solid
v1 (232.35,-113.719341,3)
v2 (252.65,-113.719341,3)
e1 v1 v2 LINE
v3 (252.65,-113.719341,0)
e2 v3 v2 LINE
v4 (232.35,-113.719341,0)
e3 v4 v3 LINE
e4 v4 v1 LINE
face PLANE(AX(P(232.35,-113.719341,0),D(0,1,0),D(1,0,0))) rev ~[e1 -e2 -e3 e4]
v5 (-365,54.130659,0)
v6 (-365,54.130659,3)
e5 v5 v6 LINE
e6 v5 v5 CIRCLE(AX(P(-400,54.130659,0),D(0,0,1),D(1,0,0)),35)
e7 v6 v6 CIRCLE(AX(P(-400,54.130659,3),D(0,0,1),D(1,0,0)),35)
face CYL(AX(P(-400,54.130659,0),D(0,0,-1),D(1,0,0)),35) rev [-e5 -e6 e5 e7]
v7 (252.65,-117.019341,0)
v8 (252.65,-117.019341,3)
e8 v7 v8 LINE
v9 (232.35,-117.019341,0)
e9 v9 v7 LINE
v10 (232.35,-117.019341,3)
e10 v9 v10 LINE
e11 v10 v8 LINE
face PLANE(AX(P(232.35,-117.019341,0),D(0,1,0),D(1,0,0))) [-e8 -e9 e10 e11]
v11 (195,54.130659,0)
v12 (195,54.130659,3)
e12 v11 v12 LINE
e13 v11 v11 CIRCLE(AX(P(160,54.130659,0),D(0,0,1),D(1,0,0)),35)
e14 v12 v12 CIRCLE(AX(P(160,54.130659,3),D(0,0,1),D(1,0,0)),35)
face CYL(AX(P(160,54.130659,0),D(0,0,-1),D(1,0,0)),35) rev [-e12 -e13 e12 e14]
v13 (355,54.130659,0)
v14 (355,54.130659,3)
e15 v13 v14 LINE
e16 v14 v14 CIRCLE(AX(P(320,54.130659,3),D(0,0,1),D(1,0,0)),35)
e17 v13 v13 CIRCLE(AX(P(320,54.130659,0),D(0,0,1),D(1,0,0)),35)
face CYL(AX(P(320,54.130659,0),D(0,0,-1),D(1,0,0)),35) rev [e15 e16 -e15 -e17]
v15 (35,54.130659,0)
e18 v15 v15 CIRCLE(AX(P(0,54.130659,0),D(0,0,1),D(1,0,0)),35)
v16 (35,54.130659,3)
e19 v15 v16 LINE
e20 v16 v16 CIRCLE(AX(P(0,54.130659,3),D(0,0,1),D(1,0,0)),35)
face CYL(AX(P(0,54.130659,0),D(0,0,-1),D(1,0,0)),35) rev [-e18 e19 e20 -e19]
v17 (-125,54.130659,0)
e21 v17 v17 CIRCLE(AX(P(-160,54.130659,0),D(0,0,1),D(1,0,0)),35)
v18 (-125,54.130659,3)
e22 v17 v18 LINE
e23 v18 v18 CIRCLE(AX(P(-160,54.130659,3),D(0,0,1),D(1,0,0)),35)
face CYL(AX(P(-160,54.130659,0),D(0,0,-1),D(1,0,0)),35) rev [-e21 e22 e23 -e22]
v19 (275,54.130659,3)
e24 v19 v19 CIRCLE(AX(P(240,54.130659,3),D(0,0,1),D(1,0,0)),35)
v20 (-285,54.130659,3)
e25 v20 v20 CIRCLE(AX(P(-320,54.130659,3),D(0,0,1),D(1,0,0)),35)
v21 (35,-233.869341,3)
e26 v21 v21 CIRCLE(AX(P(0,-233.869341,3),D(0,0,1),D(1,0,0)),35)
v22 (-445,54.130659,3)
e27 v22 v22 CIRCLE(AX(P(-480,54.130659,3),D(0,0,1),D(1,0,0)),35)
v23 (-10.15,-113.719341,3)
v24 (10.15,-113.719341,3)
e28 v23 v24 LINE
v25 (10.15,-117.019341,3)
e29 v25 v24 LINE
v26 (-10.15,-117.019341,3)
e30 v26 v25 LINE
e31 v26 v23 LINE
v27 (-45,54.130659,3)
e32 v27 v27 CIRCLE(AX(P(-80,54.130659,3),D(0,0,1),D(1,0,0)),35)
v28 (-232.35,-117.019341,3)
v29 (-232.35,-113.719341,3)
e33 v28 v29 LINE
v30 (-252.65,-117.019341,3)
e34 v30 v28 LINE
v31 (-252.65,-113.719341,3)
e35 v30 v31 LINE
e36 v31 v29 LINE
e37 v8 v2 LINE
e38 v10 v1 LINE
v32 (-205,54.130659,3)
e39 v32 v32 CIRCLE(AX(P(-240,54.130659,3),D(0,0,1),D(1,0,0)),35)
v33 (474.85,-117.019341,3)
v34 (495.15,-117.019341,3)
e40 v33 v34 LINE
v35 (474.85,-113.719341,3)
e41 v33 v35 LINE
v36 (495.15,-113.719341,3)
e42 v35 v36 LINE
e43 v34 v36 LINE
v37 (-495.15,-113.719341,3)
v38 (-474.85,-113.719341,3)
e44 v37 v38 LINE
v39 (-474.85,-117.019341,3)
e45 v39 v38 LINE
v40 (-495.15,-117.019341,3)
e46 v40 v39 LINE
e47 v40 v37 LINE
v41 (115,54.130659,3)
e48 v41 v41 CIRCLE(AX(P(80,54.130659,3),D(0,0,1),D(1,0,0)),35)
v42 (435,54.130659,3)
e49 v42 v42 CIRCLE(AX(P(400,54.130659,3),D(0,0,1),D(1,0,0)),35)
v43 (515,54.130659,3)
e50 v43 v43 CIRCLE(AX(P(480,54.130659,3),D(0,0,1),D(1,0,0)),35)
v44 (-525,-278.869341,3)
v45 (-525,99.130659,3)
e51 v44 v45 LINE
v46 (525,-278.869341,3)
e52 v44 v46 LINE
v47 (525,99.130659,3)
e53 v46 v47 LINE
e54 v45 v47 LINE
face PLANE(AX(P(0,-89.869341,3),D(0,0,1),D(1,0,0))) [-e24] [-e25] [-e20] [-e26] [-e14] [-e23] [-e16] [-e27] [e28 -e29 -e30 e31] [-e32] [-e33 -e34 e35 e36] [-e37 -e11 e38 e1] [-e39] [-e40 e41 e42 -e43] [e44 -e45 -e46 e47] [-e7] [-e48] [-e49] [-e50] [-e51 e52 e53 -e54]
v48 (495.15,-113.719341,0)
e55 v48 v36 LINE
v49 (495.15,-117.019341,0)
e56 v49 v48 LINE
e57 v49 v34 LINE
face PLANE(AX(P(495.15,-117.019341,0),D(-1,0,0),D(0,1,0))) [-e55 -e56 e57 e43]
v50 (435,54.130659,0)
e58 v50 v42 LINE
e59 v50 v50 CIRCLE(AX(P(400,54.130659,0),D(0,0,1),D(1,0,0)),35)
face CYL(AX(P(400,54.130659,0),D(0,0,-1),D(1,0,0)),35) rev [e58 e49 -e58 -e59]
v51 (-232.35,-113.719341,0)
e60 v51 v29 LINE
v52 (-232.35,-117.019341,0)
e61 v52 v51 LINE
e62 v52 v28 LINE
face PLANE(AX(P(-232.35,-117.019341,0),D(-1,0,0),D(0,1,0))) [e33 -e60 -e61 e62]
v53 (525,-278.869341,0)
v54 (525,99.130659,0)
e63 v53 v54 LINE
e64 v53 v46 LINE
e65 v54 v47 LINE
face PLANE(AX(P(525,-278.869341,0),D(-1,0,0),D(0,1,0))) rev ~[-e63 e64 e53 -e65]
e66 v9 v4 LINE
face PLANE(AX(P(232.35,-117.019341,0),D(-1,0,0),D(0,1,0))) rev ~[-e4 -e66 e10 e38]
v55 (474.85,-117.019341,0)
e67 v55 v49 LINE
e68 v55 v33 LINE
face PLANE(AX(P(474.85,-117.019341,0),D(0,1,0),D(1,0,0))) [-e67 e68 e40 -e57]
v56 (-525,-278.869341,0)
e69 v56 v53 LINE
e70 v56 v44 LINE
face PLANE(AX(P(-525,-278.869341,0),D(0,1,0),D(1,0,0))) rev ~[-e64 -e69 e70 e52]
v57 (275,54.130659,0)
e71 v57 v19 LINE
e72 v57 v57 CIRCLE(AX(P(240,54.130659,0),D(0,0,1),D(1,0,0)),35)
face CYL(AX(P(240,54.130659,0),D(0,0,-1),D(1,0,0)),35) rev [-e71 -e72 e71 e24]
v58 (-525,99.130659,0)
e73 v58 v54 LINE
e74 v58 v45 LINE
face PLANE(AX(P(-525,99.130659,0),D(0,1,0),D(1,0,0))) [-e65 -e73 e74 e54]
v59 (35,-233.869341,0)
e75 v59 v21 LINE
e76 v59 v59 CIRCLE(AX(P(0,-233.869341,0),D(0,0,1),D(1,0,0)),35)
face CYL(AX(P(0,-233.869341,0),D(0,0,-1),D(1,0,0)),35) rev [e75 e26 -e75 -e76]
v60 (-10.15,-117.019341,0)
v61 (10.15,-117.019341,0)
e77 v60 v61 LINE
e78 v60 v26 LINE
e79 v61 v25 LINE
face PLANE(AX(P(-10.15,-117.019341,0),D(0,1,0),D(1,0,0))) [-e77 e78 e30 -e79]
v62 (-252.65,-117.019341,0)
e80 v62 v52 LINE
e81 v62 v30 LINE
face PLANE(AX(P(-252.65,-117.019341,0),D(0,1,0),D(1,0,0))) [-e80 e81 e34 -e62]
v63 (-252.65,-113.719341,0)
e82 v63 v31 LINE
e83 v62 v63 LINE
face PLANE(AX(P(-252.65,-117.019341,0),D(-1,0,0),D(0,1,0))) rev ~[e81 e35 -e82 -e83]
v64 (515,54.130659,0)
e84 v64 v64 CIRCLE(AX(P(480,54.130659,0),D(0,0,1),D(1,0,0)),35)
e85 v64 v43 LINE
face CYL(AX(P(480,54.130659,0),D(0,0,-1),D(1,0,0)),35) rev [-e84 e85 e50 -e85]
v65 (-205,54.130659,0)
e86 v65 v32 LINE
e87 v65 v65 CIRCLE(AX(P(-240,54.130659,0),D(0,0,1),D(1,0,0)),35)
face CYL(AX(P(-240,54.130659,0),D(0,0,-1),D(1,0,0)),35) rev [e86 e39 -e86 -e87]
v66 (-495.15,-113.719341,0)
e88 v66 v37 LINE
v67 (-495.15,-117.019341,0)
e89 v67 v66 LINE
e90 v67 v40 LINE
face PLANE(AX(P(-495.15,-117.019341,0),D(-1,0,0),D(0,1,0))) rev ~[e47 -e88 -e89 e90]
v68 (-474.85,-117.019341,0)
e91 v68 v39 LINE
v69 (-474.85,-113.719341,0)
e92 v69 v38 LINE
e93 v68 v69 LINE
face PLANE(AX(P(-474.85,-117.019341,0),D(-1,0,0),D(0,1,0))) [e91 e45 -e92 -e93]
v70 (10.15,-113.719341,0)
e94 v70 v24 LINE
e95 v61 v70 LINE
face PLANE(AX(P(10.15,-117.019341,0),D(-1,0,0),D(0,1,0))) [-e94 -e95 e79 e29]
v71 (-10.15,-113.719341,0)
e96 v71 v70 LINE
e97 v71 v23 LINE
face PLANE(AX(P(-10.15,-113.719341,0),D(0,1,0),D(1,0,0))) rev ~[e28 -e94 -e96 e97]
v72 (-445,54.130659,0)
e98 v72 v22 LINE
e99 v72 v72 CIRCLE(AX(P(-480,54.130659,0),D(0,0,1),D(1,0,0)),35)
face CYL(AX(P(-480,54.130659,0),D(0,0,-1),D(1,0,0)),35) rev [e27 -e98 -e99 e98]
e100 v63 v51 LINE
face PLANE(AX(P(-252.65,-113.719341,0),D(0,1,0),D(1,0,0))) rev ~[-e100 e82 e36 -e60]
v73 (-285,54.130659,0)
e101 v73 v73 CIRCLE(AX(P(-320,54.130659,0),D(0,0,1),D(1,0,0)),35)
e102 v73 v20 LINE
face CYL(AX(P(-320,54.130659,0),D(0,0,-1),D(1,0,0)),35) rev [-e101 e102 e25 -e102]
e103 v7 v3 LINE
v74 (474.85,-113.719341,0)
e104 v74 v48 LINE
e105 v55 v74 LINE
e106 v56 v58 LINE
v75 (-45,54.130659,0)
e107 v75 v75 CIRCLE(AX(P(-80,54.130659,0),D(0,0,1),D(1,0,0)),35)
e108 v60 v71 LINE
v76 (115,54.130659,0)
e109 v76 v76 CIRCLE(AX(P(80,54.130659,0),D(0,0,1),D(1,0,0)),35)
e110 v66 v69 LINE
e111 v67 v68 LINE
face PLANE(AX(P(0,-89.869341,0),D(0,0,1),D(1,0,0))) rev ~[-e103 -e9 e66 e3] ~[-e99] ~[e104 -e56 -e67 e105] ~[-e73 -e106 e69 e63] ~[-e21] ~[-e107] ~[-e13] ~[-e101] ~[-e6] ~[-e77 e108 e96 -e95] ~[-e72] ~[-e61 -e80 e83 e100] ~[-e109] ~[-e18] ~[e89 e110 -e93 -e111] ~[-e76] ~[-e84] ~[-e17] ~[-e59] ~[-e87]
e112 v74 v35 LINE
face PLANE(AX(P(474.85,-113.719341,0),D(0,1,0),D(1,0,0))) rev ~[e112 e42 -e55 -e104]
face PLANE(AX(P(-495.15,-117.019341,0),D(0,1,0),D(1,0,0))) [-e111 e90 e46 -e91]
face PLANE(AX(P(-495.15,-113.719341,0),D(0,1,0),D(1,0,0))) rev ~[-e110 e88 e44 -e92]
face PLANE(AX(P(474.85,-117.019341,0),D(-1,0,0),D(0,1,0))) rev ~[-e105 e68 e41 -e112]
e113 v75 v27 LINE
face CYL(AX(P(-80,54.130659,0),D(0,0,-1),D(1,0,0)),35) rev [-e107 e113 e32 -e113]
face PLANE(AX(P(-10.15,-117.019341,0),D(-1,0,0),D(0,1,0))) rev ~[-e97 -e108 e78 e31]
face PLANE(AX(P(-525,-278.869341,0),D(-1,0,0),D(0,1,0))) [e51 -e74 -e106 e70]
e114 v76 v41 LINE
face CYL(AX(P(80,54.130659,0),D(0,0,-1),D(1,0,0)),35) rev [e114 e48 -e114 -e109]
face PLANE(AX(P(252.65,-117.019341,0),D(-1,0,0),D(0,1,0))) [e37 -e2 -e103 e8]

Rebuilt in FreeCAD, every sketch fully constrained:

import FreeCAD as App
import Part
import Sketcher


def add_polygon(sketch, points):
    """Adds a closed chain of lines whose ends are joined by coincident constraints."""
    first, n = sketch.GeometryCount, len(points)
    for a, b in zip(points, points[1:] + points[:1]):
        sketch.addGeometry(Part.LineSegment(App.Vector(*a, 0), App.Vector(*b, 0)), False)
    for i in range(n):
        sketch.addConstraint(Sketcher.Constraint("Coincident", first + i, 2, first + (i + 1) % n, 1))

doc = App.newDocument("Part")
params = doc.addObject("Spreadsheet::Sheet", "Params")
for row, (alias, value) in enumerate([
    ("sketch1_diameter", "70 mm"),
    ("sketch1_width", "1050 mm"),
    ("sketch1_height", "378 mm"),
    ("sketch1_width2", "20.3 mm"),
    ("sketch1_height2", "3.3 mm"),
    ("pad1_length", "3 mm"),
], start=1):
    params.set(f"A{row}", alias)
    params.set(f"B{row}", "=" + value)
    params.setAlias(f"B{row}", alias)

body = doc.addObject("PartDesign::Body", "Body")

# Sketch on XY plane
sketch1 = doc.addObject("Sketcher::SketchObject", "Sketch")
body.addObject(sketch1)
sketch1.AttachmentSupport = (doc.XY_Plane, [""])
sketch1.MapMode = "FlatFace"
add_polygon(sketch1, [(-525, 99.1), (-525, -278.9), (525, -278.9), (525, 99.1)])  # lines 0-3
add_polygon(sketch1, [(-474.9, -117), (-495.1, -117), (-495.1, -113.7), (-474.9, -113.7)])  # lines 4-7
add_polygon(sketch1, [(-232.3, -117), (-252.7, -117), (-252.7, -113.7), (-232.3, -113.7)])  # lines 8-11
sketch1.addGeometry(Part.Circle(App.Vector(0, -233.9, 0), App.Vector(0, 0, 1), 35), False)  # 12
add_polygon(sketch1, [(10.2, -117), (-10.2, -117), (-10.2, -113.7), (10.2, -113.7)])  # lines 13-16
add_polygon(sketch1, [(252.7, -117), (232.3, -117), (232.3, -113.7), (252.7, -113.7)])  # lines 17-20
add_polygon(sketch1, [(495.1, -117), (474.9, -117), (474.9, -113.7), (495.1, -113.7)])  # lines 21-24
sketch1.addGeometry(Part.Circle(App.Vector(-480, 54.1, 0), App.Vector(0, 0, 1), 35), False)  # 25
sketch1.addGeometry(Part.Circle(App.Vector(-400, 54.1, 0), App.Vector(0, 0, 1), 35), False)  # 26
sketch1.addGeometry(Part.Circle(App.Vector(-320, 54.1, 0), App.Vector(0, 0, 1), 35), False)  # 27
sketch1.addGeometry(Part.Circle(App.Vector(-240, 54.1, 0), App.Vector(0, 0, 1), 35), False)  # 28
sketch1.addGeometry(Part.Circle(App.Vector(-160, 54.1, 0), App.Vector(0, 0, 1), 35), False)  # 29
sketch1.addGeometry(Part.Circle(App.Vector(-80, 54.1, 0), App.Vector(0, 0, 1), 35), False)  # 30
sketch1.addGeometry(Part.Circle(App.Vector(0, 54.1, 0), App.Vector(0, 0, 1), 35), False)  # 31
sketch1.addGeometry(Part.Circle(App.Vector(80, 54.1, 0), App.Vector(0, 0, 1), 35), False)  # 32
sketch1.addGeometry(Part.Circle(App.Vector(160, 54.1, 0), App.Vector(0, 0, 1), 35), False)  # 33
sketch1.addGeometry(Part.Circle(App.Vector(240, 54.1, 0), App.Vector(0, 0, 1), 35), False)  # 34
sketch1.addGeometry(Part.Circle(App.Vector(320, 54.1, 0), App.Vector(0, 0, 1), 35), False)  # 35
sketch1.addGeometry(Part.Circle(App.Vector(400, 54.1, 0), App.Vector(0, 0, 1), 35), False)  # 36
sketch1.addGeometry(Part.Circle(App.Vector(480, 54.1, 0), App.Vector(0, 0, 1), 35), False)  # 37
sketch1.addConstraint([
    Sketcher.Constraint("Vertical", 0),
    Sketcher.Constraint("Horizontal", 1),
    Sketcher.Constraint("Vertical", 2),
    Sketcher.Constraint("Horizontal", 3),
    Sketcher.Constraint("Horizontal", 4),
    Sketcher.Constraint("Vertical", 5),
    Sketcher.Constraint("Horizontal", 6),
    Sketcher.Constraint("Vertical", 7),
    Sketcher.Constraint("Horizontal", 8),
    Sketcher.Constraint("Vertical", 9),
    Sketcher.Constraint("Horizontal", 10),
    Sketcher.Constraint("Vertical", 11),
    Sketcher.Constraint("Horizontal", 13),
    Sketcher.Constraint("Vertical", 14),
    Sketcher.Constraint("Horizontal", 15),
    Sketcher.Constraint("Vertical", 16),
    Sketcher.Constraint("Horizontal", 17),
    Sketcher.Constraint("Vertical", 18),
    Sketcher.Constraint("Horizontal", 19),
    Sketcher.Constraint("Vertical", 20),
    Sketcher.Constraint("Horizontal", 21),
    Sketcher.Constraint("Vertical", 22),
    Sketcher.Constraint("Horizontal", 23),
    Sketcher.Constraint("Vertical", 24),
    Sketcher.Constraint("Equal", 12, 25),
    Sketcher.Constraint("Equal", 25, 26),
    Sketcher.Constraint("Equal", 26, 27),
    Sketcher.Constraint("Equal", 27, 28),
    Sketcher.Constraint("Equal", 28, 29),
    Sketcher.Constraint("Equal", 29, 30),
    Sketcher.Constraint("Equal", 30, 31),
    Sketcher.Constraint("Equal", 31, 32),
    Sketcher.Constraint("Equal", 32, 33),
    Sketcher.Constraint("Equal", 33, 34),
    Sketcher.Constraint("Equal", 34, 35),
    Sketcher.Constraint("Equal", 35, 36),
    Sketcher.Constraint("Equal", 36, 37),
    Sketcher.Constraint("Symmetric", 30, 3, 32, 3, -2),
    Sketcher.Constraint("Symmetric", 29, 3, 33, 3, -2),
    Sketcher.Constraint("Symmetric", 28, 3, 34, 3, -2),
    Sketcher.Constraint("Symmetric", 27, 3, 35, 3, -2),
    Sketcher.Constraint("Symmetric", 26, 3, 36, 3, -2),
    Sketcher.Constraint("Symmetric", 25, 3, 37, 3, -2),
    Sketcher.Constraint("Symmetric", 11, 2, 17, 2, -2),
    Sketcher.Constraint("Symmetric", 9, 2, 19, 2, -2),
    Sketcher.Constraint("Symmetric", 7, 2, 21, 2, -2),
    Sketcher.Constraint("Symmetric", 5, 2, 23, 2, -2),
    Sketcher.Constraint("PointOnObject", 12, 3, -2),
    Sketcher.Constraint("PointOnObject", 31, 3, -2),
    Sketcher.Constraint("Horizontal", 25, 3, 26, 3),
    Sketcher.Constraint("Horizontal", 26, 3, 27, 3),
    Sketcher.Constraint("Horizontal", 27, 3, 28, 3),
    Sketcher.Constraint("Horizontal", 28, 3, 29, 3),
    Sketcher.Constraint("Horizontal", 29, 3, 30, 3),
    Sketcher.Constraint("Horizontal", 30, 3, 31, 3),
    Sketcher.Constraint("Horizontal", 7, 2, 8, 2),
    Sketcher.Constraint("Horizontal", 6, 2, 9, 2),
    Sketcher.Constraint("Horizontal", 11, 2, 13, 2),
    Sketcher.Constraint("Horizontal", 10, 2, 14, 2),
    Sketcher.Constraint("Equal", 6, 8),
    Sketcher.Constraint("Equal", 10, 13),
    Sketcher.Constraint("Diameter", 12, 70.0),
    Sketcher.Constraint("DistanceX", 1, 1, 1, 2, 1050.0),
    Sketcher.Constraint("DistanceY", 0, 2, 0, 1, 378.0),
    Sketcher.Constraint("DistanceX", 4, 2, 4, 1, 20.3),
    Sketcher.Constraint("DistanceY", 5, 1, 5, 2, 3.3),
    Sketcher.Constraint("DistanceX", 25, 3, -1, 1, 480.0),
    Sketcher.Constraint("DistanceX", 26, 3, -1, 1, 400.0),
    Sketcher.Constraint("DistanceX", 27, 3, -1, 1, 320.0),
    Sketcher.Constraint("DistanceX", 28, 3, -1, 1, 240.0),
    Sketcher.Constraint("DistanceX", 29, 3, -1, 1, 160.0),
    Sketcher.Constraint("DistanceX", 30, 3, -1, 1, 80.0),
    Sketcher.Constraint("DistanceX", 0, 2, -1, 1, 525.0),
    Sketcher.Constraint("DistanceY", 12, 3, 25, 3, 288.0),
    Sketcher.Constraint("DistanceY", 0, 2, 25, 3, 333.0),
    Sketcher.Constraint("DistanceX", 7, 2, 8, 2, 222.2),
    Sketcher.Constraint("DistanceX", 11, 2, 13, 2, 222.2),
    Sketcher.Constraint("DistanceX", 16, 2, 17, 2, 222.2),
    Sketcher.Constraint("DistanceY", 0, 2, 4, 2, 161.85),
    Sketcher.Constraint("DistanceY", 12, 3, -1, 1, 233.869341),
])
sketch1.setExpression("Constraints[85]", "Params.sketch1_diameter")
sketch1.setExpression("Constraints[86]", "Params.sketch1_width")
sketch1.setExpression("Constraints[87]", "Params.sketch1_height")
sketch1.setExpression("Constraints[88]", "Params.sketch1_width2")
sketch1.setExpression("Constraints[89]", "Params.sketch1_height2")
pad1 = doc.addObject("PartDesign::Pad", "Pad")
body.addObject(pad1)
pad1.Profile = sketch1
pad1.setExpression("Length", "Params.pad1_length")

doc.recompute()
